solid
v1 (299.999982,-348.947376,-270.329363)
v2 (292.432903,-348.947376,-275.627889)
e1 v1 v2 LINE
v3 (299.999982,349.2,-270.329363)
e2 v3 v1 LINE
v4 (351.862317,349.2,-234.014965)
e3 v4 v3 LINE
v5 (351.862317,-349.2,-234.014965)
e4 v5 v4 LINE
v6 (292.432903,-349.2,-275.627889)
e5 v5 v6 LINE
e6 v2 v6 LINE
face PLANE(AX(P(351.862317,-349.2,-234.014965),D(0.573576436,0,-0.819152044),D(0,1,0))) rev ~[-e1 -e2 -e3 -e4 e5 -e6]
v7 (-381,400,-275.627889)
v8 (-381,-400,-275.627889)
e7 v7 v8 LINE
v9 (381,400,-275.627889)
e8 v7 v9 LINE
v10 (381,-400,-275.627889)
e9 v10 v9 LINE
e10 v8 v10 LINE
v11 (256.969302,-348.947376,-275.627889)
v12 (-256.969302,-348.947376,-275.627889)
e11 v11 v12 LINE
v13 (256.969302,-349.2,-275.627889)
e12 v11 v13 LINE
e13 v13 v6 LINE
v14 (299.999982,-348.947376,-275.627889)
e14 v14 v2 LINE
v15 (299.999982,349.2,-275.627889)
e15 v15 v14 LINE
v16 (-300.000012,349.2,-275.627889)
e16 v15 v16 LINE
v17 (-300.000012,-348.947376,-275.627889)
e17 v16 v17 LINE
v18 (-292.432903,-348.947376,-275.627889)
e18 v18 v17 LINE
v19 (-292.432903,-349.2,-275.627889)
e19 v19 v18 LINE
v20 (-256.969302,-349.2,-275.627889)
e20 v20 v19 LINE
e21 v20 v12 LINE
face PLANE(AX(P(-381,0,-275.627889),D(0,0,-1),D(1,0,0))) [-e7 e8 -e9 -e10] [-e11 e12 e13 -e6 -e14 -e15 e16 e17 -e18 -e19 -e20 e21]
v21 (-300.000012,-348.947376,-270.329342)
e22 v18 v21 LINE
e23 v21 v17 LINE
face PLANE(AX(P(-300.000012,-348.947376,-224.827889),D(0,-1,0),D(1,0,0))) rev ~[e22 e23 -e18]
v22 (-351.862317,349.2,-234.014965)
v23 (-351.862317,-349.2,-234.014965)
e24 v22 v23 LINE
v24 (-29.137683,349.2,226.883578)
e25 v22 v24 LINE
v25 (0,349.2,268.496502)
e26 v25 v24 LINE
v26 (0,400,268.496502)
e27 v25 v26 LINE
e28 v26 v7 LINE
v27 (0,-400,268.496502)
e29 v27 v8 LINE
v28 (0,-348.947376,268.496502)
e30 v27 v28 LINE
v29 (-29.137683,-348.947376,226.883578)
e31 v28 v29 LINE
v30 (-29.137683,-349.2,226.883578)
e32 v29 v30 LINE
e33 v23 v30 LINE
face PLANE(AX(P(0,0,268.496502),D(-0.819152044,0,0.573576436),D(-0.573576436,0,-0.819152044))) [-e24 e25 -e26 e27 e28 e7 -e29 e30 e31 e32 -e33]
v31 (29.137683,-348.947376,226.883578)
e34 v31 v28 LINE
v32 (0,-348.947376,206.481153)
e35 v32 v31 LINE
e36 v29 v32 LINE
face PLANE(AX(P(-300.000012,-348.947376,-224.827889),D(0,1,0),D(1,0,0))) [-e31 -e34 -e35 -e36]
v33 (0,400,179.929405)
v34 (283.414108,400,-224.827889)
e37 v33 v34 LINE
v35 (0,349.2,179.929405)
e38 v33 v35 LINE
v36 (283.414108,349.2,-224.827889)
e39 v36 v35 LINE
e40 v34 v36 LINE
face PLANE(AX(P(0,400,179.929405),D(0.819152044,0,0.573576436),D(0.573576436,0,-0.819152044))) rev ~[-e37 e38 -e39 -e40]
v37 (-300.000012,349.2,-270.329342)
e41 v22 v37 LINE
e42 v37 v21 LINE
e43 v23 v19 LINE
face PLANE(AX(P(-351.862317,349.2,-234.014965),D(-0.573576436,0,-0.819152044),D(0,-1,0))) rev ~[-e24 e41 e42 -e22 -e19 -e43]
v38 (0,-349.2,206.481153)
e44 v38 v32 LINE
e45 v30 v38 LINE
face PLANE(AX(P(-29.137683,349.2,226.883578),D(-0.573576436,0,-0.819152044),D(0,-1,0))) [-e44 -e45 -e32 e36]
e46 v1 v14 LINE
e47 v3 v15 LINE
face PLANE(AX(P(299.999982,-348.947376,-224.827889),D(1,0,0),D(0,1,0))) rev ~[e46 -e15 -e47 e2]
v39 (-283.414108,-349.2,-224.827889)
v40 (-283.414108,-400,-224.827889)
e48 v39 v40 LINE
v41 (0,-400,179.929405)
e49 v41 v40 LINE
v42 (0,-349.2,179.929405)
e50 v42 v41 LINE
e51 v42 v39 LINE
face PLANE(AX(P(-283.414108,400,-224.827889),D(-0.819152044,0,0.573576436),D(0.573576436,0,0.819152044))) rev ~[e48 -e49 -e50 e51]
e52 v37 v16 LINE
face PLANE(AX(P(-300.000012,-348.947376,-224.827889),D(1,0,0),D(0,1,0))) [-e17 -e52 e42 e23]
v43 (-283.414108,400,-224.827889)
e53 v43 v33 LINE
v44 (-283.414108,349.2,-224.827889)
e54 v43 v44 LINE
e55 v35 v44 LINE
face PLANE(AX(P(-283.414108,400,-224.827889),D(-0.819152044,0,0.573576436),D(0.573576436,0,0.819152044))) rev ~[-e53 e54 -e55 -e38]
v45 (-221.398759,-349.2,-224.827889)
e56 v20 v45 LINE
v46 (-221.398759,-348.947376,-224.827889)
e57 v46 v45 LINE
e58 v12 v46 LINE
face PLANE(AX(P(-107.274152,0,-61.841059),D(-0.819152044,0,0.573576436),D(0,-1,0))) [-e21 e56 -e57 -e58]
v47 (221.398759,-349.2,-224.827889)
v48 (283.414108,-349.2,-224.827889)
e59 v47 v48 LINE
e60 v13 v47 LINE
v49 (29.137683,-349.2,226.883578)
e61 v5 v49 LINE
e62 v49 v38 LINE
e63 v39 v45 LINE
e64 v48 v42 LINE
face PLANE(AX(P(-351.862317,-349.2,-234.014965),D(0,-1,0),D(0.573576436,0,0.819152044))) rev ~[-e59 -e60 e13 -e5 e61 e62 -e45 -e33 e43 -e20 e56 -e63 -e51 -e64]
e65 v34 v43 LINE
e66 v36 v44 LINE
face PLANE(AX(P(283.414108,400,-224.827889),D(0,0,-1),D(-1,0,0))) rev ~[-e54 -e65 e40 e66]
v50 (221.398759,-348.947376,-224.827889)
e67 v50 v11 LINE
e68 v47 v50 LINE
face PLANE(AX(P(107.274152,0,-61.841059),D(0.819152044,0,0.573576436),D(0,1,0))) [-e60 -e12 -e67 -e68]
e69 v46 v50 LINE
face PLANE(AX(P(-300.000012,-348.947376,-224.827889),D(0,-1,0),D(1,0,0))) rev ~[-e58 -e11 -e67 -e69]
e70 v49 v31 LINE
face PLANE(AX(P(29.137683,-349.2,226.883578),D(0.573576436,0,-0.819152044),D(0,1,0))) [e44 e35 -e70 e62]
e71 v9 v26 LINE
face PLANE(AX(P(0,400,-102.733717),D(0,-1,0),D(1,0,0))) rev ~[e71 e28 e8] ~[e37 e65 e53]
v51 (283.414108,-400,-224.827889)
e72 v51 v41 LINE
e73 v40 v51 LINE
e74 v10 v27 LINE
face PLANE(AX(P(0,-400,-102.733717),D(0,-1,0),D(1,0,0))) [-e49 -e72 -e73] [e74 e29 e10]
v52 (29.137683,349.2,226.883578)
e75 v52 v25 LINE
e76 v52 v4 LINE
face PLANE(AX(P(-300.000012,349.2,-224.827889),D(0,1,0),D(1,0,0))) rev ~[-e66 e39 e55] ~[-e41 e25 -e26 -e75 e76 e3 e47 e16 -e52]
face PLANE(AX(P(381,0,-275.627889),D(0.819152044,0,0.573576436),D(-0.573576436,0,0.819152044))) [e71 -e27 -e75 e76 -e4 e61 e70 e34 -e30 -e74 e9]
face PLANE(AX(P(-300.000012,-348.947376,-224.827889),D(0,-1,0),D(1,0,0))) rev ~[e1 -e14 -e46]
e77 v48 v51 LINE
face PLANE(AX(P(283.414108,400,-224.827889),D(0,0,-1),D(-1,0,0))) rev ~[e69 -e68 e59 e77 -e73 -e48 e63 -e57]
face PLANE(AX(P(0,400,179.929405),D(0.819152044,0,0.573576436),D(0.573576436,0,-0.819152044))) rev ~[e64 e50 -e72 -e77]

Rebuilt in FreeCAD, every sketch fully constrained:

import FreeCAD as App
import Part
import Sketcher
from FreeCAD import Vector
Q = App.Units.Quantity


def add_polygon(sketch, points):
    """Adds a closed chain of lines whose ends are joined by coincident constraints."""
    first, n = sketch.GeometryCount, len(points)
    for a, b in zip(points, points[1:] + points[:1]):
        sketch.addGeometry(Part.LineSegment(App.Vector(*a, 0), App.Vector(*b, 0)), False)
    for i in range(n):
        sketch.addConstraint(Sketcher.Constraint("Coincident", first + i, 2, first + (i + 1) % n, 1))

doc = App.newDocument("Part")
body = doc.addObject("PartDesign::Body", "Body")

sketch1 = body.newObject("Sketcher::SketchObject", "Sketch")
sketch1.AttachmentSupport = (doc.getObject("XZ_Plane"), [""])
sketch1.MapMode = "FlatFace"
add_polygon(sketch1, [(0, 268.496502), (-381, -275.627889), (381, -275.627889)])
sketch1.addConstraint([
    Sketcher.Constraint("Horizontal", 1),
    Sketcher.Constraint("PointOnObject", 2, 2, -2),
    Sketcher.Constraint("Equal", 0, 2),
    Sketcher.Constraint("DistanceX", 1, 1, 1, 2, Q("30 in")),
    Sketcher.Constraint("Angle", 0, Q("-125 deg")),
    Sketcher.Constraint("DistanceY", -1, 1, 2, 2, 268.496502),
])
pad1 = body.newObject("PartDesign::Pad", "Pad")
pad1.Profile = sketch1
pad1.Length = 800
pad1.Midplane = True

sketch2 = body.newObject("Sketcher::SketchObject", "Sketch001")
sketch2.Placement = App.Placement(Vector(126.152091, 0, 88.332645), App.Rotation(Vector(0, 1, 0), Vector(-0.573576436, 0, 0.819152044), Vector(0.819152044, 0, 0.573576436), "ZXY"))
add_polygon(sketch2, [(-349.2, 169.139458), (-349.2, -393.513771), (349.2, -393.513771), (349.2, 169.139458)])
sketch2.addConstraint([
    Sketcher.Constraint("Vertical", 0),
    Sketcher.Constraint("Horizontal", 1),
    Sketcher.Constraint("Vertical", 2),
    Sketcher.Constraint("Horizontal", 3),
    Sketcher.Constraint("DistanceX", 1, 1, 1, 2, 698.4),
    Sketcher.Constraint("DistanceY", 0, 2, 0, 1, 562.653229),
    Sketcher.Constraint("DistanceX", 0, 2, -1, 1, 349.2),
    Sketcher.Constraint("DistanceY", 0, 2, -1, 1, 393.513771),
])
pocket1 = body.newObject("PartDesign::Pocket", "Pocket")
pocket1.Profile = sketch2
pocket1.Length = Q("4 in")

sketch3 = body.newObject("Sketcher::SketchObject", "Sketch002")
sketch3.Placement = App.Placement(Vector(-126.152091, 0, 88.332645), App.Rotation(Vector(0, -1, 0), Vector(0.573576436, 0, 0.819152044), Vector(-0.819152044, 0, 0.573576436), "ZXY"))
add_polygon(sketch3, [(-349.2, 169.139458), (-349.2, -393.513771), (349.2, -393.513771), (349.2, 169.139458)])
sketch3.addConstraint([
    Sketcher.Constraint("Vertical", 0),
    Sketcher.Constraint("Horizontal", 1),
    Sketcher.Constraint("Vertical", 2),
    Sketcher.Constraint("Horizontal", 3),
    Sketcher.Constraint("DistanceX", 1, 1, 1, 2, 698.4),
    Sketcher.Constraint("DistanceY", 0, 2, 0, 1, 562.653229),
    Sketcher.Constraint("DistanceX", 0, 2, -1, 1, 349.2),
    Sketcher.Constraint("DistanceY", 0, 2, -1, 1, 393.513771),
])
pocket2 = body.newObject("PartDesign::Pocket", "Pocket001")
pocket2.Profile = sketch3
pocket2.Length = Q("4 in")

sketch4 = body.newObject("Sketcher::SketchObject", "Sketch003")
sketch4.AttachmentSupport = (doc.getObject("XZ_Plane"), [""])
sketch4.MapMode = "FlatFace"
sketch4.AttachmentOffset = App.Placement(Vector(0, 0, -400), App.Rotation())
add_polygon(sketch4, [(0, 179.929405), (283.414108, -224.827889), (-283.414108, -224.827889)])
sketch4.addConstraint([
    Sketcher.Constraint("Horizontal", 1),
    Sketcher.Constraint("PointOnObject", 2, 2, -2),
    Sketcher.Constraint("Equal", 0, 2),
    Sketcher.Constraint("Angle", 0, Q("-55 deg")),
    Sketcher.Constraint("Distance", 0, 494.117418),
    Sketcher.Constraint("DistanceY", 0, 2, -1, 1, 224.827889),
])
pocket3 = body.newObject("PartDesign::Pocket", "Pocket002")
pocket3.Profile = sketch4
pocket3.Type = "ThroughAll"
pocket3.Reversed = True

sketch5 = body.newObject("Sketcher::SketchObject", "Sketch004")
sketch5.AttachmentSupport = (doc.getObject("XY_Plane"), [""])
sketch5.MapMode = "FlatFace"
sketch5.AttachmentOffset = App.Placement(Vector(0, 0, -224.827889), App.Rotation())
add_polygon(sketch5, [(-300.000012, 349.2), (-300.000012, -348.947376), (299.999982, -348.947376), (299.999982, 349.2)])
sketch5.addConstraint([
    Sketcher.Constraint("Vertical", 0),
    Sketcher.Constraint("Horizontal", 1),
    Sketcher.Constraint("Vertical", 2),
    Sketcher.Constraint("Horizontal", 3),
    Sketcher.Constraint("DistanceY", -1, 1, 2, 2, 349.2),
    Sketcher.Constraint("DistanceX", 1, 1, 1, 2, 599.999994),
    Sketcher.Constraint("DistanceY", 0, 2, 0, 1, 698.147376),
    Sketcher.Constraint("DistanceX", 0, 2, -1, 1, 300.000012),
])
pocket4 = body.newObject("PartDesign::Pocket", "Pocket003")
pocket4.Profile = sketch5
pocket4.Length = Q("23 in")
pocket4.Reversed = True

sketch6 = body.newObject("Sketcher::SketchObject", "Sketch005")
sketch6.AttachmentSupport = (doc.getObject("XY_Plane"), [""])
sketch6.MapMode = "FlatFace"
sketch6.AttachmentOffset = App.Placement(Vector(0, 0, -224.827889), App.Rotation())
add_polygon(sketch6, [(-300.000012, 349.2), (-300.000012, -348.947376), (299.999982, -348.947376), (299.999982, 349.2)])
sketch6.addConstraint([
    Sketcher.Constraint("Vertical", 0),
    Sketcher.Constraint("Horizontal", 1),
    Sketcher.Constraint("Vertical", 2),
    Sketcher.Constraint("Horizontal", 3),
    Sketcher.Constraint("DistanceY", -1, 1, 2, 2, 349.2),
    Sketcher.Constraint("DistanceX", 1, 1, 1, 2, 599.999994),
    Sketcher.Constraint("DistanceY", 0, 2, 0, 1, 698.147376),
    Sketcher.Constraint("DistanceX", 0, 2, -1, 1, 300.000012),
])
pocket5 = body.newObject("PartDesign::Pocket", "Pocket004")
pocket5.Profile = sketch6
pocket5.Length = Q("4 in")

doc.recompute()
